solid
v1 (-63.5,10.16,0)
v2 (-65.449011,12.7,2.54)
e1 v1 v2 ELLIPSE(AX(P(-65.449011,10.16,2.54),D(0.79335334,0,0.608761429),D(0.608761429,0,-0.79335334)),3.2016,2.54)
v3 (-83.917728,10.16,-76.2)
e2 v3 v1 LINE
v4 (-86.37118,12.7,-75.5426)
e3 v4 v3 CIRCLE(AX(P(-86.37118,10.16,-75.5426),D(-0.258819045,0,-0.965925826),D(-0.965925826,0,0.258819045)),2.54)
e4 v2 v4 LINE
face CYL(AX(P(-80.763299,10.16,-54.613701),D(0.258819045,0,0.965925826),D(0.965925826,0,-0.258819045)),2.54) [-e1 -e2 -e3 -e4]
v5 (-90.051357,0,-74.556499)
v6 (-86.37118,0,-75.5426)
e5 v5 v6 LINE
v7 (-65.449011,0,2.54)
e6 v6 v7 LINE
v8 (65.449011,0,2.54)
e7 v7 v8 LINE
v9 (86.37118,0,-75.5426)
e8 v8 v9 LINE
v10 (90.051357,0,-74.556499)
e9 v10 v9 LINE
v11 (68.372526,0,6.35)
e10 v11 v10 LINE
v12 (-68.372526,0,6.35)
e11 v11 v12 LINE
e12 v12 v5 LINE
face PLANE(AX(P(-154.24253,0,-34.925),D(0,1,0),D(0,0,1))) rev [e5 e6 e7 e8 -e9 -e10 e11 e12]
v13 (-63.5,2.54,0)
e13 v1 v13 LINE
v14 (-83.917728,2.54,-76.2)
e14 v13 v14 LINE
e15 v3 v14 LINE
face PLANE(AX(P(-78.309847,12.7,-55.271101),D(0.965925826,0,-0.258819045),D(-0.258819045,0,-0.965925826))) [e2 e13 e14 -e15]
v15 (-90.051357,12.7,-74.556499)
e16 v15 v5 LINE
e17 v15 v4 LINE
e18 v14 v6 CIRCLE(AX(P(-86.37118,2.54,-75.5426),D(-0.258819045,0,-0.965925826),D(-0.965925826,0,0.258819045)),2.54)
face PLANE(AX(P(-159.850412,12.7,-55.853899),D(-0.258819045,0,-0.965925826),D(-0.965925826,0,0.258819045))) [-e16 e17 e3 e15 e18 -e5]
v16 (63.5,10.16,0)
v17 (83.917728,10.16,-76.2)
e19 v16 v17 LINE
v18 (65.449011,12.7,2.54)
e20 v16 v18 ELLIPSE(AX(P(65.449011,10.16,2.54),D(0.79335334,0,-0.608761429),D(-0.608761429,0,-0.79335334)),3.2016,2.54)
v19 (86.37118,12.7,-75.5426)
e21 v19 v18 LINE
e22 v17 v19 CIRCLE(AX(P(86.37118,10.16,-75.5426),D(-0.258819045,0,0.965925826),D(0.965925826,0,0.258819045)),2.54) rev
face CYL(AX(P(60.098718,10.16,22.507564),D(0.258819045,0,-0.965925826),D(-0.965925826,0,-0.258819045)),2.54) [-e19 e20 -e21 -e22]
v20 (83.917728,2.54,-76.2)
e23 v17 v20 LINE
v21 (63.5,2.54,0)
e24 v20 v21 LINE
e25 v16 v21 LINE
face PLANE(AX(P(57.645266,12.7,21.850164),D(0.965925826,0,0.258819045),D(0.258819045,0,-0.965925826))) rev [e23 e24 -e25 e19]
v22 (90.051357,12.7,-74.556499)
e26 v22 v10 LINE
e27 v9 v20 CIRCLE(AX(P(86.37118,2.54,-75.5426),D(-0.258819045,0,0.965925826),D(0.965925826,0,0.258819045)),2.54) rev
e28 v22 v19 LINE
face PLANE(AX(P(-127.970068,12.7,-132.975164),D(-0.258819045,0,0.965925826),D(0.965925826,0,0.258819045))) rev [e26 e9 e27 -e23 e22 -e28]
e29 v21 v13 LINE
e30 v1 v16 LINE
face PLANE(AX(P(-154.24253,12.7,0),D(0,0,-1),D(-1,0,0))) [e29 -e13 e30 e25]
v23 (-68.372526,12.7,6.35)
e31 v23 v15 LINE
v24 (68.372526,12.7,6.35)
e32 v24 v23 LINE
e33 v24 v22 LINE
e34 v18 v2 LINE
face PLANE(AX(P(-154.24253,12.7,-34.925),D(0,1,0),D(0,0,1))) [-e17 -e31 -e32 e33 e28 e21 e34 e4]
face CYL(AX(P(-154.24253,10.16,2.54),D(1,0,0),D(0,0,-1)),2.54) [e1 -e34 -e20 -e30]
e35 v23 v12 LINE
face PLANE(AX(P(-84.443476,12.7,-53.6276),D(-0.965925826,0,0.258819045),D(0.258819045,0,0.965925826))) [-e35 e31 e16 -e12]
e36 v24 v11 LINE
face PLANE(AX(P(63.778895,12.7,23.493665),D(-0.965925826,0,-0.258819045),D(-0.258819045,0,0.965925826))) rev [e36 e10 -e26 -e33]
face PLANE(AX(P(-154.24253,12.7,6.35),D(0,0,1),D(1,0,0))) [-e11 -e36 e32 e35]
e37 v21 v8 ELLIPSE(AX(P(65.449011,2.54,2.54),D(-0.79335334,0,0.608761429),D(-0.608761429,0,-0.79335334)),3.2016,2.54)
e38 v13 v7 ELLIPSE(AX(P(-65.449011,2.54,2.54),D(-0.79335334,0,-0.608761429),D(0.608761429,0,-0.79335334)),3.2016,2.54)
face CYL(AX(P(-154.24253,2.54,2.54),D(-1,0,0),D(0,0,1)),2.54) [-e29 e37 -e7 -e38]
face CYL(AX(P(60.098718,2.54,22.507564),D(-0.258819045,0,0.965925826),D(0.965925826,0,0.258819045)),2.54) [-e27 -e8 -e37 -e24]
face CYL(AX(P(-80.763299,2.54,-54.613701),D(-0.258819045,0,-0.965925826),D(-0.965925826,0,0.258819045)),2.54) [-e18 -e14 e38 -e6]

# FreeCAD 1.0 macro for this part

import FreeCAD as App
import Part
import Sketcher
from FreeCAD import Vector
Q = App.Units.Quantity


def edges_at(feature, points):
    """Names of the edges that pass closest to the given points."""
    edges = feature.Shape.Edges
    near = lambda p: min(range(len(edges)), key=lambda i: edges[i].distToShape(Part.Vertex(*p))[0])
    return sorted({f"Edge{near(p) + 1}" for p in points})

doc = App.newDocument("Part")
params = doc.addObject("Spreadsheet::Sheet", "Params")
for row, (alias, value) in enumerate([
    ("sketch1_width", "5 in"),
    ("sketch1_length", "0.25 in"),
    ("pad1_length", "0.5 in"),
    ("fillet_radius", "0.1 in"),
], start=1):
    params.set(f"A{row}", alias)
    params.set(f"B{row}", "=" + value)
    params.setAlias(f"B{row}", alias)

body = doc.addObject("PartDesign::Body", "Body")

sketch1 = body.newObject("Sketcher::SketchObject", "Sketch")
sketch1.AttachmentSupport = (doc.getObject("XZ_Plane"), [""])
sketch1.MapMode = "FlatFace"
sketch1.addGeometry([
    Part.LineSegment(Vector(-64, 0, 0), Vector(-84, -76, 0)),
    Part.LineSegment(Vector(-84, -76, 0), Vector(-90, -75, 0)),
    Part.LineSegment(Vector(-90, -75, 0), Vector(-68, 6, 0)),
    Part.LineSegment(Vector(-68, 6, 0), Vector(68, 6, 0)),
    Part.LineSegment(Vector(68, 6, 0), Vector(90, -75, 0)),
    Part.LineSegment(Vector(90, -75, 0), Vector(84, -76, 0)),
    Part.LineSegment(Vector(84, -76, 0), Vector(64, 0, 0)),
    Part.LineSegment(Vector(64, 0, 0), Vector(-64, 0, 0)),
], False)
sketch1.addConstraint([
    Sketcher.Constraint("Coincident", 0, 2, 1, 1),
    Sketcher.Constraint("Coincident", 1, 2, 2, 1),
    Sketcher.Constraint("Coincident", 2, 2, 3, 1),
    Sketcher.Constraint("Coincident", 3, 2, 4, 1),
    Sketcher.Constraint("Coincident", 4, 2, 5, 1),
    Sketcher.Constraint("Coincident", 5, 2, 6, 1),
    Sketcher.Constraint("Coincident", 6, 2, 7, 1),
    Sketcher.Constraint("Coincident", 7, 2, 0, 1),
    Sketcher.Constraint("Horizontal", 3),
    Sketcher.Constraint("Horizontal", 7),
    Sketcher.Constraint("Symmetric", 6, 2, 7, 2, -1, 1),
    Sketcher.Constraint("Symmetric", 1, 2, 4, 2, -2),
    Sketcher.Constraint("Symmetric", 0, 2, 5, 2, -2),
    Sketcher.Constraint("Perpendicular", 0, 1),
    Sketcher.Constraint("Perpendicular", 1, 2),
    Sketcher.Constraint("Perpendicular", 4, 5),
    Sketcher.Constraint("DistanceX", 7, 2, 7, 1, Q("5 in")),
    Sketcher.Constraint("DistanceY", 0, 2, -1, 1, Q("3 in")),
    Sketcher.Constraint("Angle", 0, Q("-105 deg")),
    Sketcher.Constraint("Distance", 1, Q("0.25 in")),
    Sketcher.Constraint("DistanceY", -1, 1, 2, 2, Q("0.25 in")),
])
sketch1.setExpression("Constraints[16]", "Params.sketch1_width")
sketch1.setExpression("Constraints[19]", "Params.sketch1_length")
pad1 = body.newObject("PartDesign::Pad", "Pad")
pad1.Profile = sketch1
pad1.setExpression("Length", "Params.pad1_length")
pad1.Reversed = True
doc.recompute()

fillet = body.newObject("PartDesign::Fillet", "Fillet")
fillet.Base = (pad1, edges_at(pad1, [
    (73.709, 12.7, -38.1),
    (0, 12.7, 0),
    (-73.709, 12.7, -38.1),
    (-73.709, 0, -38.1),
    (0, 0, 0),
    (73.709, 0, -38.1),
]))
fillet.setExpression("Radius", "Params.fillet_radius")

doc.recompute()
